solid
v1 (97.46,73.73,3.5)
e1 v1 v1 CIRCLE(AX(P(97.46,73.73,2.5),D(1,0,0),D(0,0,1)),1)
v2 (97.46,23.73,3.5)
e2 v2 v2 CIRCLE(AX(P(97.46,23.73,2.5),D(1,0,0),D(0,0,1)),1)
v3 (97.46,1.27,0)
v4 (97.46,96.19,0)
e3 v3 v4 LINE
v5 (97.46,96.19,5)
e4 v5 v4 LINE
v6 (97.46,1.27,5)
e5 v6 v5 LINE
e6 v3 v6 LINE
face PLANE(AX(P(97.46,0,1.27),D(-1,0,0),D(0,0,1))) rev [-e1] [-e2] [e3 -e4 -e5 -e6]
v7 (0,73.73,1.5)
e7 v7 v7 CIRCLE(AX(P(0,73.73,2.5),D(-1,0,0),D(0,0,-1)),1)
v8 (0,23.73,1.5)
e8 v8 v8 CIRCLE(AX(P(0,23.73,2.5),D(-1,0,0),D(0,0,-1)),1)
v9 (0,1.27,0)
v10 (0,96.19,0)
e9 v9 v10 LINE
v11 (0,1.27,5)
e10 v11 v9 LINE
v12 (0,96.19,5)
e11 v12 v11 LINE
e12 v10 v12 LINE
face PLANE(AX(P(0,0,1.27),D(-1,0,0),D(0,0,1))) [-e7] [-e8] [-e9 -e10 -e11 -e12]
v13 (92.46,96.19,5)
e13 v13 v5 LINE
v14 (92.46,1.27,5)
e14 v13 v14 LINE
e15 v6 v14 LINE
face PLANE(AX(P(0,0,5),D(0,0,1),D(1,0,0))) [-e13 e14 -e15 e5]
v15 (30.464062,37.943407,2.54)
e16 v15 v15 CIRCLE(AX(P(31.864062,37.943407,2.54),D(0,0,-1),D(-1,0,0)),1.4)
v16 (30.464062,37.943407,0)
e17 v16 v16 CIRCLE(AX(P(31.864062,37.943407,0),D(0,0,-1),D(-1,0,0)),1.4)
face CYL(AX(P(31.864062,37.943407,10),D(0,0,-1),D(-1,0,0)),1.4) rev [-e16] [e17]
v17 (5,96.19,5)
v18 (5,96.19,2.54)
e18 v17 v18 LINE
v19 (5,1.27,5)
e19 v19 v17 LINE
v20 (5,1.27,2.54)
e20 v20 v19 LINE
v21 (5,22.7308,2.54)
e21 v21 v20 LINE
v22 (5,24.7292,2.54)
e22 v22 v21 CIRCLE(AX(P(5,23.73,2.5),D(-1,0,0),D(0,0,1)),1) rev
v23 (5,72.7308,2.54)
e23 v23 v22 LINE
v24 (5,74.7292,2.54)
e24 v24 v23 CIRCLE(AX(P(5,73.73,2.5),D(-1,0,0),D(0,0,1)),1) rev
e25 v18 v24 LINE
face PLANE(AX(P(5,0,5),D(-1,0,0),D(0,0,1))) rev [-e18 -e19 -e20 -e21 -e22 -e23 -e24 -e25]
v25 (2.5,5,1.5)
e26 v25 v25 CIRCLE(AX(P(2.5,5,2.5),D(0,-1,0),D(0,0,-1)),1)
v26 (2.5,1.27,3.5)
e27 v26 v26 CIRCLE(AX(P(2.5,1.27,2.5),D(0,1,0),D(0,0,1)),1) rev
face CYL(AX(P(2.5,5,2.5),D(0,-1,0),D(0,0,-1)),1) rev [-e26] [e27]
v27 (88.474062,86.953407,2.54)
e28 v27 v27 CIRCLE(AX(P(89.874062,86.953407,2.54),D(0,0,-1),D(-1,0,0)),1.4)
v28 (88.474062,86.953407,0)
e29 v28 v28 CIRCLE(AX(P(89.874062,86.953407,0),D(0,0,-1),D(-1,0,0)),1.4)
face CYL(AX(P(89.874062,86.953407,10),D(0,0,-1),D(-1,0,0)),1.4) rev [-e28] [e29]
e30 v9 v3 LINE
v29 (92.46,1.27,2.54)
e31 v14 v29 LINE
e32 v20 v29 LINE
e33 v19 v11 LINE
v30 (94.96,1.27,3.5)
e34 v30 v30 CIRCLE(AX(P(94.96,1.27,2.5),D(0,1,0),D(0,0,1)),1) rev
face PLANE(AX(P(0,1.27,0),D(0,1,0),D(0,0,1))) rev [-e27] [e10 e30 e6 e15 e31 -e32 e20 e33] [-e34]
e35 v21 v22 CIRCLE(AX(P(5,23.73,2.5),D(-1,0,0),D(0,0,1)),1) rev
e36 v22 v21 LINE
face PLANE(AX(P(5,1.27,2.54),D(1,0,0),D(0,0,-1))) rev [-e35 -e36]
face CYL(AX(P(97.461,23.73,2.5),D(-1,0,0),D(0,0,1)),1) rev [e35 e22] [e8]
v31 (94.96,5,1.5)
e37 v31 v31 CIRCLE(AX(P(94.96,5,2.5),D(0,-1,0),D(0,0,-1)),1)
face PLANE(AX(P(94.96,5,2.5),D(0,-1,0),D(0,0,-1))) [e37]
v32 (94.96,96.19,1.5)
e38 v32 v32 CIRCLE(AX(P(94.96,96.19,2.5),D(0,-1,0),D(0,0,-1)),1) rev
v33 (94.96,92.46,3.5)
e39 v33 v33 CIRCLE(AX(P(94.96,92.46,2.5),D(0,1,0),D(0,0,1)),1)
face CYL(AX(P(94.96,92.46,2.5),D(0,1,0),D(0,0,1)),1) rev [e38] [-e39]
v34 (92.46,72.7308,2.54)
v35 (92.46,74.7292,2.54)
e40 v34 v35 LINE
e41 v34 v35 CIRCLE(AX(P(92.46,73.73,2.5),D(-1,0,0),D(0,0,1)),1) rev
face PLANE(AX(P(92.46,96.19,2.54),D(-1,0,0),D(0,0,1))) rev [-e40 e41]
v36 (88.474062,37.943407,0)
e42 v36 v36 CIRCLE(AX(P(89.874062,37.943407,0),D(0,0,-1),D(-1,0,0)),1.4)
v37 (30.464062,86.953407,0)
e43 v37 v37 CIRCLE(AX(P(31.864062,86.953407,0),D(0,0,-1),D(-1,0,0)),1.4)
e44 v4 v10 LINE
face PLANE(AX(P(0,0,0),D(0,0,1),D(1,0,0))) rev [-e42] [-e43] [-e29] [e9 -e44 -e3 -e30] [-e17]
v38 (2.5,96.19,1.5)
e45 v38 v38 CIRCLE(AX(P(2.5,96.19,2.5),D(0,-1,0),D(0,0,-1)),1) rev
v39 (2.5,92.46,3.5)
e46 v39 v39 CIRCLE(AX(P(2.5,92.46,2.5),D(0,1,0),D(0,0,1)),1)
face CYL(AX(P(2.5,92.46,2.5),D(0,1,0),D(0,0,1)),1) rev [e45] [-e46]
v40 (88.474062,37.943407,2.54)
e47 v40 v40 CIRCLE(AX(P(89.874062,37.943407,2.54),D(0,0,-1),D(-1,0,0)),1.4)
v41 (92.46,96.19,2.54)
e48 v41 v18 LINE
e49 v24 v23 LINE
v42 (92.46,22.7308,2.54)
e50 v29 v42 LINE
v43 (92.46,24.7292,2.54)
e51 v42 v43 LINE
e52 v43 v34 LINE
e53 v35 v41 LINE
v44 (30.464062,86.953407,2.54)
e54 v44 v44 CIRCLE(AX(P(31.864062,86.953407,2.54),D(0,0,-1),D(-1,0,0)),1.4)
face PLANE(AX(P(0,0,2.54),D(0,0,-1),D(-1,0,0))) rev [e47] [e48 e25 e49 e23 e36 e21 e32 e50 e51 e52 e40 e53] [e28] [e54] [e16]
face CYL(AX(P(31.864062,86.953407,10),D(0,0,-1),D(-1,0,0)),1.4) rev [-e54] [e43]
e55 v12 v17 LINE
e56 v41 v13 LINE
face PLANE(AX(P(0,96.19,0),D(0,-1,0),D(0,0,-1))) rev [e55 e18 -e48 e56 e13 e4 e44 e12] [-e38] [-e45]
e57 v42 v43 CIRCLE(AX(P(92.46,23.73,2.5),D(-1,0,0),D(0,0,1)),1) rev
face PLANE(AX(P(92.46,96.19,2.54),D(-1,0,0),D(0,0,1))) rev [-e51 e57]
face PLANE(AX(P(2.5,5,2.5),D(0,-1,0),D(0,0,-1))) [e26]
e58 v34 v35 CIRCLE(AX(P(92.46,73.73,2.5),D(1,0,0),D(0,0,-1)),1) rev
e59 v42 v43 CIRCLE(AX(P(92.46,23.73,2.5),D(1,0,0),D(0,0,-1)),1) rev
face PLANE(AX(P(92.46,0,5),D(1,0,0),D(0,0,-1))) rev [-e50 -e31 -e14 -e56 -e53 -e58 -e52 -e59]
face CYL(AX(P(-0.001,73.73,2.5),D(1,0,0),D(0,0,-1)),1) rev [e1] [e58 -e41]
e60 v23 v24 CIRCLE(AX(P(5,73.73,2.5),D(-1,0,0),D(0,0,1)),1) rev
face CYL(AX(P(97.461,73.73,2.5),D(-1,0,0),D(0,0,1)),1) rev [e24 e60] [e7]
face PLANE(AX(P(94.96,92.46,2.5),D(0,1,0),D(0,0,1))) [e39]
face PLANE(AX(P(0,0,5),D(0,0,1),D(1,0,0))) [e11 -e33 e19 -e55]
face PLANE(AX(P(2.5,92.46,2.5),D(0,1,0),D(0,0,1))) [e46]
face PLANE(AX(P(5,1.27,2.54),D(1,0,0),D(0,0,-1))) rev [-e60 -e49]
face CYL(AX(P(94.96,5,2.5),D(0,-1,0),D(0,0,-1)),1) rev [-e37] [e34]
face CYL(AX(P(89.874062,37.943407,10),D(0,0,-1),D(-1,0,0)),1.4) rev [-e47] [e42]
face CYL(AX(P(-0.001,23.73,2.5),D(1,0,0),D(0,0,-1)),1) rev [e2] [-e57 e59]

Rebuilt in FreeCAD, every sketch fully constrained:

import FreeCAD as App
import Part
import Sketcher
from FreeCAD import Vector

doc = App.newDocument("Part")
body = doc.addObject("PartDesign::Body", "Body")

sketch1 = doc.addObject("Sketcher::SketchObject", "Sketch")
body.addObject(sketch1)
sketch1.AttachmentSupport = (doc.XY_Plane, [""])
sketch1.MapMode = "FlatFace"
sketch1.addGeometry([
    Part.LineSegment(Vector(0, 97, 0), Vector(0, 0, 0)),
    Part.LineSegment(Vector(0, 0, 0), Vector(97, 0, 0)),
    Part.LineSegment(Vector(97, 0, 0), Vector(97, 97, 0)),
    Part.LineSegment(Vector(97, 97, 0), Vector(0, 97, 0)),
], False)
sketch1.addConstraint([
    Sketcher.Constraint("Coincident", 0, 2, 1, 1),
    Sketcher.Constraint("Coincident", 1, 2, 2, 1),
    Sketcher.Constraint("Coincident", 2, 2, 3, 1),
    Sketcher.Constraint("Coincident", 3, 2, 0, 1),
    Sketcher.Constraint("Vertical", 0),
    Sketcher.Constraint("Horizontal", 1),
    Sketcher.Constraint("Vertical", 2),
    Sketcher.Constraint("Horizontal", 3),
    Sketcher.Constraint("Coincident", 0, 2, -1, 1),
    Sketcher.Constraint("Equal", 3, 0),
    Sketcher.Constraint("DistanceX", 1, 1, 1, 2, 97.46),
])
pad1 = doc.addObject("PartDesign::Pad", "Pad")
body.addObject(pad1)
pad1.Profile = sketch1
pad1.Length = 1.27

sketch2 = doc.addObject("Sketcher::SketchObject", "Sketch001")
body.addObject(sketch2)
sketch2.AttachmentSupport = (doc.XY_Plane, [""])
sketch2.MapMode = "FlatFace"
sketch2.AttachmentOffset = App.Placement(Vector(0, 0, 1.27), App.Rotation())
sketch2.addGeometry([
    Part.LineSegment(Vector(0, 97, 0), Vector(0, 0, 0)),
    Part.LineSegment(Vector(0, 0, 0), Vector(5, 0, 0)),
    Part.LineSegment(Vector(5, 0, 0), Vector(5, 97, 0)),
    Part.LineSegment(Vector(5, 97, 0), Vector(0, 97, 0)),
    Part.LineSegment(Vector(92, 97, 0), Vector(92, 0, 0)),
    Part.LineSegment(Vector(92, 0, 0), Vector(97, 0, 0)),
    Part.LineSegment(Vector(97, 0, 0), Vector(97, 97, 0)),
    Part.LineSegment(Vector(97, 97, 0), Vector(92, 97, 0)),
], False)
sketch2.addConstraint([
    Sketcher.Constraint("Coincident", 0, 2, 1, 1),
    Sketcher.Constraint("Coincident", 1, 2, 2, 1),
    Sketcher.Constraint("Coincident", 2, 2, 3, 1),
    Sketcher.Constraint("Coincident", 3, 2, 0, 1),
    Sketcher.Constraint("Coincident", 4, 2, 5, 1),
    Sketcher.Constraint("Coincident", 5, 2, 6, 1),
    Sketcher.Constraint("Coincident", 6, 2, 7, 1),
    Sketcher.Constraint("Coincident", 7, 2, 4, 1),
    Sketcher.Constraint("Vertical", 0),
    Sketcher.Constraint("Horizontal", 1),
    Sketcher.Constraint("Vertical", 2),
    Sketcher.Constraint("Horizontal", 3),
    Sketcher.Constraint("Vertical", 4),
    Sketcher.Constraint("Horizontal", 5),
    Sketcher.Constraint("Vertical", 6),
    Sketcher.Constraint("Horizontal", 7),
    Sketcher.Constraint("Coincident", 0, 2, -1, 1),
    Sketcher.Constraint("PointOnObject", 4, 2, -1),
    Sketcher.Constraint("Horizontal", 3, 2, 6, 2),
    Sketcher.Constraint("Equal", 3, 5),
    Sketcher.Constraint("DistanceX", 1, 1, 1, 2, 5.0),
    Sketcher.Constraint("DistanceY", 0, 2, 0, 1, 97.46),
    Sketcher.Constraint("DistanceX", -1, 1, 4, 2, 92.46),
])
pad2 = doc.addObject("PartDesign::Pad", "Pad001")
body.addObject(pad2)
pad2.Profile = sketch2
pad2.Length = 3.73

sketch3 = doc.addObject("Sketcher::SketchObject", "Sketch002")
body.addObject(sketch3)
sketch3.AttachmentSupport = (doc.XZ_Plane, [""])
sketch3.MapMode = "FlatFace"
sketch3.AttachmentOffset = App.Placement(Vector(0, 0, -97.46), App.Rotation())
sketch3.addGeometry(Part.Circle(Vector(2.5, 2.5, 0), Vector(0, 0, 1), 1), False)
sketch3.addConstraint([
    Sketcher.Constraint("Diameter", 0, 2.0),
    Sketcher.Constraint("DistanceX", -1, 1, 0, 3, 2.5),
    Sketcher.Constraint("DistanceY", -1, 1, 0, 3, 2.5),
])
pocket1 = doc.addObject("PartDesign::Pocket", "Pocket")
body.addObject(pocket1)
pocket1.Profile = sketch3
pocket1.Length = 5
pocket1.Reversed = True

sketch4 = doc.addObject("Sketcher::SketchObject", "Sketch003")
body.addObject(sketch4)
sketch4.AttachmentSupport = (doc.XZ_Plane, [""])
sketch4.MapMode = "FlatFace"
sketch4.AttachmentOffset = App.Placement(Vector(0, 0, -97.46), App.Rotation())
sketch4.addGeometry(Part.Circle(Vector(95, 2.5, 0), Vector(0, 0, 1), 1), False)
sketch4.addConstraint([
    Sketcher.Constraint("Diameter", 0, 2.0),
    Sketcher.Constraint("DistanceY", -1, 1, 0, 3, 2.5),
    Sketcher.Constraint("DistanceX", -1, 1, 0, 3, 94.96),
])
pocket2 = doc.addObject("PartDesign::Pocket", "Pocket001")
body.addObject(pocket2)
pocket2.Profile = sketch4
pocket2.Length = 5
pocket2.Reversed = True

sketch5 = doc.addObject("Sketcher::SketchObject", "Sketch004")
body.addObject(sketch5)
sketch5.AttachmentSupport = (doc.XZ_Plane, [""])
sketch5.MapMode = "FlatFace"
sketch5.addGeometry(Part.Circle(Vector(95, 2.5, 0), Vector(0, 0, 1), 1), False)
sketch5.addConstraint([
    Sketcher.Constraint("Diameter", 0, 2.0),
    Sketcher.Constraint("DistanceY", -1, 1, 0, 3, 2.5),
    Sketcher.Constraint("DistanceX", -1, 1, 0, 3, 94.96),
])
pocket3 = doc.addObject("PartDesign::Pocket", "Pocket002")
body.addObject(pocket3)
pocket3.Profile = sketch5
pocket3.Length = 5

sketch6 = doc.addObject("Sketcher::SketchObject", "Sketch005")
body.addObject(sketch6)
sketch6.AttachmentSupport = (doc.XZ_Plane, [""])
sketch6.MapMode = "FlatFace"
sketch6.addGeometry(Part.Circle(Vector(2.5, 2.5, 0), Vector(0, 0, 1), 1), False)
sketch6.addConstraint([
    Sketcher.Constraint("Diameter", 0, 2.0),
    Sketcher.Constraint("DistanceX", -1, 1, 0, 3, 2.5),
    Sketcher.Constraint("DistanceY", -1, 1, 0, 3, 2.5),
])
pocket4 = doc.addObject("PartDesign::Pocket", "Pocket003")
body.addObject(pocket4)
pocket4.Profile = sketch6
pocket4.Length = 5

sketch7 = doc.addObject("Sketcher::SketchObject", "Sketch006")
body.addObject(sketch7)
sketch7.AttachmentSupport = (doc.YZ_Plane, [""])
sketch7.MapMode = "FlatFace"
sketch7.addGeometry(Part.Circle(Vector(23.7, 2.5, 0), Vector(0, 0, 1), 1), False)
sketch7.addConstraint([
    Sketcher.Constraint("Diameter", 0, 2.0),
    Sketcher.Constraint("DistanceY", -1, 1, 0, 3, 2.5),
    Sketcher.Constraint("DistanceX", -1, 1, 0, 3, 23.73),
])
pocket5 = doc.addObject("PartDesign::Pocket", "Pocket004")
body.addObject(pocket5)
pocket5.Profile = sketch7
pocket5.Type = "UpToFirst"
pocket5.Reversed = True

sketch8 = doc.addObject("Sketcher::SketchObject", "Sketch007")
body.addObject(sketch8)
sketch8.AttachmentSupport = (doc.YZ_Plane, [""])
sketch8.MapMode = "FlatFace"
sketch8.addGeometry(Part.Circle(Vector(73.7, 2.5, 0), Vector(0, 0, 1), 1), False)
sketch8.addConstraint([
    Sketcher.Constraint("Diameter", 0, 2.0),
    Sketcher.Constraint("DistanceY", -1, 1, 0, 3, 2.5),
    Sketcher.Constraint("DistanceX", -1, 1, 0, 3, 73.73),
])
pocket6 = doc.addObject("PartDesign::Pocket", "Pocket005")
body.addObject(pocket6)
pocket6.Profile = sketch8
pocket6.Type = "UpToFirst"
pocket6.Reversed = True

sketch9 = doc.addObject("Sketcher::SketchObject", "Sketch008")
body.addObject(sketch9)
sketch9.AttachmentSupport = (doc.YZ_Plane, [""])
sketch9.MapMode = "FlatFace"
sketch9.AttachmentOffset = App.Placement(Vector(0, 0, 97.46), App.Rotation())
sketch9.addGeometry(Part.Circle(Vector(73.7, 2.5, 0), Vector(0, 0, 1), 1), False)
sketch9.addConstraint([
    Sketcher.Constraint("Diameter", 0, 2.0),
    Sketcher.Constraint("DistanceY", -1, 1, 0, 3, 2.5),
    Sketcher.Constraint("DistanceX", -1, 1, 0, 3, 73.73),
])
pocket7 = doc.addObject("PartDesign::Pocket", "Pocket006")
body.addObject(pocket7)
pocket7.Profile = sketch9
pocket7.Type = "UpToFirst"

sketch10 = doc.addObject("Sketcher::SketchObject", "Sketch009")
body.addObject(sketch10)
sketch10.AttachmentSupport = (doc.YZ_Plane, [""])
sketch10.MapMode = "FlatFace"
sketch10.AttachmentOffset = App.Placement(Vector(0, 0, 97.46), App.Rotation())
sketch10.addGeometry(Part.Circle(Vector(23.7, 2.5, 0), Vector(0, 0, 1), 1), False)
sketch10.addConstraint([
    Sketcher.Constraint("Diameter", 0, 2.0),
    Sketcher.Constraint("DistanceY", -1, 1, 0, 3, 2.5),
    Sketcher.Constraint("DistanceX", -1, 1, 0, 3, 23.73),
])
pocket8 = doc.addObject("PartDesign::Pocket", "Pocket007")
body.addObject(pocket8)
pocket8.Profile = sketch10
pocket8.Type = "UpToFirst"

sketch11 = doc.addObject("Sketcher::SketchObject", "Sketch010")
body.addObject(sketch11)
sketch11.AttachmentSupport = (doc.XZ_Plane, [""])
sketch11.MapMode = "FlatFace"
sketch11.addGeometry([
    Part.LineSegment(Vector(97.5, 5, 0), Vector(92.5, 5, 0)),
    Part.LineSegment(Vector(92.5, 5, 0), Vector(92.5, 1.3, 0)),
    Part.LineSegment(Vector(92.5, 1.3, 0), Vector(5, 1.3, 0)),
    Part.LineSegment(Vector(5, 1.3, 0), Vector(5, 5, 0)),
    Part.LineSegment(Vector(5, 5, 0), Vector(0, 5, 0)),
    Part.LineSegment(Vector(0, 5, 0), Vector(0, 0, 0)),
    Part.LineSegment(Vector(0, 0, 0), Vector(97.5, 0, 0)),
    Part.LineSegment(Vector(97.5, 0, 0), Vector(97.5, 5, 0)),
], False)
sketch11.addConstraint([
    Sketcher.Constraint("Coincident", 0, 2, 1, 1),
    Sketcher.Constraint("Coincident", 1, 2, 2, 1),
    Sketcher.Constraint("Coincident", 2, 2, 3, 1),
    Sketcher.Constraint("Coincident", 3, 2, 4, 1),
    Sketcher.Constraint("Coincident", 4, 2, 5, 1),
    Sketcher.Constraint("Coincident", 5, 2, 6, 1),
    Sketcher.Constraint("Coincident", 6, 2, 7, 1),
    Sketcher.Constraint("Coincident", 7, 2, 0, 1),
    Sketcher.Constraint("Horizontal", 0),
    Sketcher.Constraint("Vertical", 1),
    Sketcher.Constraint("Horizontal", 2),
    Sketcher.Constraint("Vertical", 3),
    Sketcher.Constraint("Horizontal", 4),
    Sketcher.Constraint("Vertical", 5),
    Sketcher.Constraint("Horizontal", 6),
    Sketcher.Constraint("Vertical", 7),
    Sketcher.Constraint("Coincident", 5, 2, -1, 1),
    Sketcher.Constraint("Horizontal", 0, 2, 3, 2),
    Sketcher.Constraint("Equal", 0, 4),
    Sketcher.Constraint("Equal", 4, 5),
    Sketcher.Constraint("DistanceX", 0, 2, 0, 1, 5.0),
    Sketcher.Constraint("DistanceX", 2, 2, 2, 1, 87.46),
    Sketcher.Constraint("DistanceY", 1, 2, 1, 1, 3.73),
])
pocket9 = doc.addObject("PartDesign::Pocket", "Pocket008")
body.addObject(pocket9)
pocket9.Profile = sketch11
pocket9.Length = 1.27

sketch12 = doc.addObject("Sketcher::SketchObject", "Sketch011")
body.addObject(sketch12)
sketch12.AttachmentSupport = (doc.XZ_Plane, [""])
sketch12.MapMode = "FlatFace"
sketch12.AttachmentOffset = App.Placement(Vector(0, 0, -97.46), App.Rotation())
sketch12.addGeometry([
    Part.LineSegment(Vector(92.5, 1.3, 0), Vector(92.5, 5, 0)),
    Part.LineSegment(Vector(92.5, 5, 0), Vector(97.5, 5, 0)),
    Part.LineSegment(Vector(97.5, 5, 0), Vector(97.5, 0, 0)),
    Part.LineSegment(Vector(97.5, 0, 0), Vector(0, 0, 0)),
    Part.LineSegment(Vector(0, 0, 0), Vector(0, 5, 0)),
    Part.LineSegment(Vector(0, 5, 0), Vector(5, 5, 0)),
    Part.LineSegment(Vector(5, 5, 0), Vector(5, 1.3, 0)),
    Part.LineSegment(Vector(5, 1.3, 0), Vector(92.5, 1.3, 0)),
], False)
sketch12.addConstraint([
    Sketcher.Constraint("Coincident", 0, 2, 1, 1),
    Sketcher.Constraint("Coincident", 1, 2, 2, 1),
    Sketcher.Constraint("Coincident", 2, 2, 3, 1),
    Sketcher.Constraint("Coincident", 3, 2, 4, 1),
    Sketcher.Constraint("Coincident", 4, 2, 5, 1),
    Sketcher.Constraint("Coincident", 5, 2, 6, 1),
    Sketcher.Constraint("Coincident", 6, 2, 7, 1),
    Sketcher.Constraint("Coincident", 7, 2, 0, 1),
    Sketcher.Constraint("Vertical", 0),
    Sketcher.Constraint("Horizontal", 1),
    Sketcher.Constraint("Vertical", 2),
    Sketcher.Constraint("Horizontal", 3),
    Sketcher.Constraint("Vertical", 4),
    Sketcher.Constraint("Horizontal", 5),
    Sketcher.Constraint("Vertical", 6),
    Sketcher.Constraint("Horizontal", 7),
    Sketcher.Constraint("Coincident", 3, 2, -1, 1),
    Sketcher.Constraint("Horizontal", 1, 2, 4, 2),
    Sketcher.Constraint("Equal", 1, 5),
    Sketcher.Constraint("Equal", 5, 2),
    Sketcher.Constraint("DistanceX", 1, 1, 1, 2, 5.0),
    Sketcher.Constraint("DistanceX", 3, 2, 3, 1, 97.46),
    Sketcher.Constraint("DistanceY", 0, 1, 0, 2, 3.73),
])
pocket10 = doc.addObject("PartDesign::Pocket", "Pocket009")
body.addObject(pocket10)
pocket10.Profile = sketch12
pocket10.Length = 1.27
pocket10.Reversed = True

sketch13 = doc.addObject("Sketcher::SketchObject", "Sketch012")
body.addObject(sketch13)
sketch13.AttachmentSupport = (doc.XY_Plane, [""])
sketch13.MapMode = "FlatFace"
sketch13.AttachmentOffset = App.Placement(Vector(0, 0, 1.27), App.Rotation())
sketch13.addGeometry([
    Part.LineSegment(Vector(5, 96, 0), Vector(5, 1, 0)),
    Part.LineSegment(Vector(5, 1, 0), Vector(92, 1, 0)),
    Part.LineSegment(Vector(92, 1, 0), Vector(92, 96, 0)),
    Part.LineSegment(Vector(92, 96, 0), Vector(5, 96, 0)),
], False)
sketch13.addConstraint([
    Sketcher.Constraint("Coincident", 0, 2, 1, 1),
    Sketcher.Constraint("Coincident", 1, 2, 2, 1),
    Sketcher.Constraint("Coincident", 2, 2, 3, 1),
    Sketcher.Constraint("Coincident", 3, 2, 0, 1),
    Sketcher.Constraint("Vertical", 0),
    Sketcher.Constraint("Horizontal", 1),
    Sketcher.Constraint("Vertical", 2),
    Sketcher.Constraint("Horizontal", 3),
    Sketcher.Constraint("DistanceX", -1, 1, 0, 2, 5.0),
    Sketcher.Constraint("DistanceX", 1, 1, 1, 2, 87.46),
    Sketcher.Constraint("DistanceY", 0, 2, 0, 1, 94.92),
    Sketcher.Constraint("DistanceY", -1, 1, 0, 2, 1.27),
])
pad3 = doc.addObject("PartDesign::Pad", "Pad002")
body.addObject(pad3)
pad3.Profile = sketch13
pad3.Length = 1.27

sketch14 = doc.addObject("Sketcher::SketchObject", "Sketch013")
body.addObject(sketch14)
sketch14.AttachmentSupport = (doc.XY_Plane, [""])
sketch14.MapMode = "FlatFace"
sketch14.addGeometry([
    Part.Circle(Vector(31.9, 37.9, 0), Vector(0, 0, 1), 1.4),
    Part.Circle(Vector(89.9, 87, 0), Vector(0, 0, 1), 1.4),
    Part.Circle(Vector(31.9, 87, 0), Vector(0, 0, 1), 1.4),
    Part.Circle(Vector(89.9, 37.9, 0), Vector(0, 0, 1), 1.4),
], False)
sketch14.addConstraint([
    Sketcher.Constraint("Equal", 0, 1),
    Sketcher.Constraint("Equal", 1, 2),
    Sketcher.Constraint("Equal", 2, 3),
    Sketcher.Constraint("Horizontal", 1, 3, 2, 3),
    Sketcher.Constraint("Horizontal", 0, 3, 3, 3),
    Sketcher.Constraint("Vertical", 0, 3, 2, 3),
    Sketcher.Constraint("Vertical", 1, 3, 3, 3),
    Sketcher.Constraint("Diameter", 0, 2.8),
    Sketcher.Constraint("DistanceX", 0, 3, 1, 3, 58.01),
    Sketcher.Constraint("DistanceY", 0, 3, 1, 3, 49.01),
    Sketcher.Constraint("DistanceX", -1, 1, 0, 3, 31.864062),
    Sketcher.Constraint("DistanceY", -1, 1, 0, 3, 37.943407),
])
pocket11 = doc.addObject("PartDesign::Pocket", "Pocket010")
body.addObject(pocket11)
pocket11.Profile = sketch14
pocket11.Length = 10
pocket11.Reversed = True

doc.recompute()
